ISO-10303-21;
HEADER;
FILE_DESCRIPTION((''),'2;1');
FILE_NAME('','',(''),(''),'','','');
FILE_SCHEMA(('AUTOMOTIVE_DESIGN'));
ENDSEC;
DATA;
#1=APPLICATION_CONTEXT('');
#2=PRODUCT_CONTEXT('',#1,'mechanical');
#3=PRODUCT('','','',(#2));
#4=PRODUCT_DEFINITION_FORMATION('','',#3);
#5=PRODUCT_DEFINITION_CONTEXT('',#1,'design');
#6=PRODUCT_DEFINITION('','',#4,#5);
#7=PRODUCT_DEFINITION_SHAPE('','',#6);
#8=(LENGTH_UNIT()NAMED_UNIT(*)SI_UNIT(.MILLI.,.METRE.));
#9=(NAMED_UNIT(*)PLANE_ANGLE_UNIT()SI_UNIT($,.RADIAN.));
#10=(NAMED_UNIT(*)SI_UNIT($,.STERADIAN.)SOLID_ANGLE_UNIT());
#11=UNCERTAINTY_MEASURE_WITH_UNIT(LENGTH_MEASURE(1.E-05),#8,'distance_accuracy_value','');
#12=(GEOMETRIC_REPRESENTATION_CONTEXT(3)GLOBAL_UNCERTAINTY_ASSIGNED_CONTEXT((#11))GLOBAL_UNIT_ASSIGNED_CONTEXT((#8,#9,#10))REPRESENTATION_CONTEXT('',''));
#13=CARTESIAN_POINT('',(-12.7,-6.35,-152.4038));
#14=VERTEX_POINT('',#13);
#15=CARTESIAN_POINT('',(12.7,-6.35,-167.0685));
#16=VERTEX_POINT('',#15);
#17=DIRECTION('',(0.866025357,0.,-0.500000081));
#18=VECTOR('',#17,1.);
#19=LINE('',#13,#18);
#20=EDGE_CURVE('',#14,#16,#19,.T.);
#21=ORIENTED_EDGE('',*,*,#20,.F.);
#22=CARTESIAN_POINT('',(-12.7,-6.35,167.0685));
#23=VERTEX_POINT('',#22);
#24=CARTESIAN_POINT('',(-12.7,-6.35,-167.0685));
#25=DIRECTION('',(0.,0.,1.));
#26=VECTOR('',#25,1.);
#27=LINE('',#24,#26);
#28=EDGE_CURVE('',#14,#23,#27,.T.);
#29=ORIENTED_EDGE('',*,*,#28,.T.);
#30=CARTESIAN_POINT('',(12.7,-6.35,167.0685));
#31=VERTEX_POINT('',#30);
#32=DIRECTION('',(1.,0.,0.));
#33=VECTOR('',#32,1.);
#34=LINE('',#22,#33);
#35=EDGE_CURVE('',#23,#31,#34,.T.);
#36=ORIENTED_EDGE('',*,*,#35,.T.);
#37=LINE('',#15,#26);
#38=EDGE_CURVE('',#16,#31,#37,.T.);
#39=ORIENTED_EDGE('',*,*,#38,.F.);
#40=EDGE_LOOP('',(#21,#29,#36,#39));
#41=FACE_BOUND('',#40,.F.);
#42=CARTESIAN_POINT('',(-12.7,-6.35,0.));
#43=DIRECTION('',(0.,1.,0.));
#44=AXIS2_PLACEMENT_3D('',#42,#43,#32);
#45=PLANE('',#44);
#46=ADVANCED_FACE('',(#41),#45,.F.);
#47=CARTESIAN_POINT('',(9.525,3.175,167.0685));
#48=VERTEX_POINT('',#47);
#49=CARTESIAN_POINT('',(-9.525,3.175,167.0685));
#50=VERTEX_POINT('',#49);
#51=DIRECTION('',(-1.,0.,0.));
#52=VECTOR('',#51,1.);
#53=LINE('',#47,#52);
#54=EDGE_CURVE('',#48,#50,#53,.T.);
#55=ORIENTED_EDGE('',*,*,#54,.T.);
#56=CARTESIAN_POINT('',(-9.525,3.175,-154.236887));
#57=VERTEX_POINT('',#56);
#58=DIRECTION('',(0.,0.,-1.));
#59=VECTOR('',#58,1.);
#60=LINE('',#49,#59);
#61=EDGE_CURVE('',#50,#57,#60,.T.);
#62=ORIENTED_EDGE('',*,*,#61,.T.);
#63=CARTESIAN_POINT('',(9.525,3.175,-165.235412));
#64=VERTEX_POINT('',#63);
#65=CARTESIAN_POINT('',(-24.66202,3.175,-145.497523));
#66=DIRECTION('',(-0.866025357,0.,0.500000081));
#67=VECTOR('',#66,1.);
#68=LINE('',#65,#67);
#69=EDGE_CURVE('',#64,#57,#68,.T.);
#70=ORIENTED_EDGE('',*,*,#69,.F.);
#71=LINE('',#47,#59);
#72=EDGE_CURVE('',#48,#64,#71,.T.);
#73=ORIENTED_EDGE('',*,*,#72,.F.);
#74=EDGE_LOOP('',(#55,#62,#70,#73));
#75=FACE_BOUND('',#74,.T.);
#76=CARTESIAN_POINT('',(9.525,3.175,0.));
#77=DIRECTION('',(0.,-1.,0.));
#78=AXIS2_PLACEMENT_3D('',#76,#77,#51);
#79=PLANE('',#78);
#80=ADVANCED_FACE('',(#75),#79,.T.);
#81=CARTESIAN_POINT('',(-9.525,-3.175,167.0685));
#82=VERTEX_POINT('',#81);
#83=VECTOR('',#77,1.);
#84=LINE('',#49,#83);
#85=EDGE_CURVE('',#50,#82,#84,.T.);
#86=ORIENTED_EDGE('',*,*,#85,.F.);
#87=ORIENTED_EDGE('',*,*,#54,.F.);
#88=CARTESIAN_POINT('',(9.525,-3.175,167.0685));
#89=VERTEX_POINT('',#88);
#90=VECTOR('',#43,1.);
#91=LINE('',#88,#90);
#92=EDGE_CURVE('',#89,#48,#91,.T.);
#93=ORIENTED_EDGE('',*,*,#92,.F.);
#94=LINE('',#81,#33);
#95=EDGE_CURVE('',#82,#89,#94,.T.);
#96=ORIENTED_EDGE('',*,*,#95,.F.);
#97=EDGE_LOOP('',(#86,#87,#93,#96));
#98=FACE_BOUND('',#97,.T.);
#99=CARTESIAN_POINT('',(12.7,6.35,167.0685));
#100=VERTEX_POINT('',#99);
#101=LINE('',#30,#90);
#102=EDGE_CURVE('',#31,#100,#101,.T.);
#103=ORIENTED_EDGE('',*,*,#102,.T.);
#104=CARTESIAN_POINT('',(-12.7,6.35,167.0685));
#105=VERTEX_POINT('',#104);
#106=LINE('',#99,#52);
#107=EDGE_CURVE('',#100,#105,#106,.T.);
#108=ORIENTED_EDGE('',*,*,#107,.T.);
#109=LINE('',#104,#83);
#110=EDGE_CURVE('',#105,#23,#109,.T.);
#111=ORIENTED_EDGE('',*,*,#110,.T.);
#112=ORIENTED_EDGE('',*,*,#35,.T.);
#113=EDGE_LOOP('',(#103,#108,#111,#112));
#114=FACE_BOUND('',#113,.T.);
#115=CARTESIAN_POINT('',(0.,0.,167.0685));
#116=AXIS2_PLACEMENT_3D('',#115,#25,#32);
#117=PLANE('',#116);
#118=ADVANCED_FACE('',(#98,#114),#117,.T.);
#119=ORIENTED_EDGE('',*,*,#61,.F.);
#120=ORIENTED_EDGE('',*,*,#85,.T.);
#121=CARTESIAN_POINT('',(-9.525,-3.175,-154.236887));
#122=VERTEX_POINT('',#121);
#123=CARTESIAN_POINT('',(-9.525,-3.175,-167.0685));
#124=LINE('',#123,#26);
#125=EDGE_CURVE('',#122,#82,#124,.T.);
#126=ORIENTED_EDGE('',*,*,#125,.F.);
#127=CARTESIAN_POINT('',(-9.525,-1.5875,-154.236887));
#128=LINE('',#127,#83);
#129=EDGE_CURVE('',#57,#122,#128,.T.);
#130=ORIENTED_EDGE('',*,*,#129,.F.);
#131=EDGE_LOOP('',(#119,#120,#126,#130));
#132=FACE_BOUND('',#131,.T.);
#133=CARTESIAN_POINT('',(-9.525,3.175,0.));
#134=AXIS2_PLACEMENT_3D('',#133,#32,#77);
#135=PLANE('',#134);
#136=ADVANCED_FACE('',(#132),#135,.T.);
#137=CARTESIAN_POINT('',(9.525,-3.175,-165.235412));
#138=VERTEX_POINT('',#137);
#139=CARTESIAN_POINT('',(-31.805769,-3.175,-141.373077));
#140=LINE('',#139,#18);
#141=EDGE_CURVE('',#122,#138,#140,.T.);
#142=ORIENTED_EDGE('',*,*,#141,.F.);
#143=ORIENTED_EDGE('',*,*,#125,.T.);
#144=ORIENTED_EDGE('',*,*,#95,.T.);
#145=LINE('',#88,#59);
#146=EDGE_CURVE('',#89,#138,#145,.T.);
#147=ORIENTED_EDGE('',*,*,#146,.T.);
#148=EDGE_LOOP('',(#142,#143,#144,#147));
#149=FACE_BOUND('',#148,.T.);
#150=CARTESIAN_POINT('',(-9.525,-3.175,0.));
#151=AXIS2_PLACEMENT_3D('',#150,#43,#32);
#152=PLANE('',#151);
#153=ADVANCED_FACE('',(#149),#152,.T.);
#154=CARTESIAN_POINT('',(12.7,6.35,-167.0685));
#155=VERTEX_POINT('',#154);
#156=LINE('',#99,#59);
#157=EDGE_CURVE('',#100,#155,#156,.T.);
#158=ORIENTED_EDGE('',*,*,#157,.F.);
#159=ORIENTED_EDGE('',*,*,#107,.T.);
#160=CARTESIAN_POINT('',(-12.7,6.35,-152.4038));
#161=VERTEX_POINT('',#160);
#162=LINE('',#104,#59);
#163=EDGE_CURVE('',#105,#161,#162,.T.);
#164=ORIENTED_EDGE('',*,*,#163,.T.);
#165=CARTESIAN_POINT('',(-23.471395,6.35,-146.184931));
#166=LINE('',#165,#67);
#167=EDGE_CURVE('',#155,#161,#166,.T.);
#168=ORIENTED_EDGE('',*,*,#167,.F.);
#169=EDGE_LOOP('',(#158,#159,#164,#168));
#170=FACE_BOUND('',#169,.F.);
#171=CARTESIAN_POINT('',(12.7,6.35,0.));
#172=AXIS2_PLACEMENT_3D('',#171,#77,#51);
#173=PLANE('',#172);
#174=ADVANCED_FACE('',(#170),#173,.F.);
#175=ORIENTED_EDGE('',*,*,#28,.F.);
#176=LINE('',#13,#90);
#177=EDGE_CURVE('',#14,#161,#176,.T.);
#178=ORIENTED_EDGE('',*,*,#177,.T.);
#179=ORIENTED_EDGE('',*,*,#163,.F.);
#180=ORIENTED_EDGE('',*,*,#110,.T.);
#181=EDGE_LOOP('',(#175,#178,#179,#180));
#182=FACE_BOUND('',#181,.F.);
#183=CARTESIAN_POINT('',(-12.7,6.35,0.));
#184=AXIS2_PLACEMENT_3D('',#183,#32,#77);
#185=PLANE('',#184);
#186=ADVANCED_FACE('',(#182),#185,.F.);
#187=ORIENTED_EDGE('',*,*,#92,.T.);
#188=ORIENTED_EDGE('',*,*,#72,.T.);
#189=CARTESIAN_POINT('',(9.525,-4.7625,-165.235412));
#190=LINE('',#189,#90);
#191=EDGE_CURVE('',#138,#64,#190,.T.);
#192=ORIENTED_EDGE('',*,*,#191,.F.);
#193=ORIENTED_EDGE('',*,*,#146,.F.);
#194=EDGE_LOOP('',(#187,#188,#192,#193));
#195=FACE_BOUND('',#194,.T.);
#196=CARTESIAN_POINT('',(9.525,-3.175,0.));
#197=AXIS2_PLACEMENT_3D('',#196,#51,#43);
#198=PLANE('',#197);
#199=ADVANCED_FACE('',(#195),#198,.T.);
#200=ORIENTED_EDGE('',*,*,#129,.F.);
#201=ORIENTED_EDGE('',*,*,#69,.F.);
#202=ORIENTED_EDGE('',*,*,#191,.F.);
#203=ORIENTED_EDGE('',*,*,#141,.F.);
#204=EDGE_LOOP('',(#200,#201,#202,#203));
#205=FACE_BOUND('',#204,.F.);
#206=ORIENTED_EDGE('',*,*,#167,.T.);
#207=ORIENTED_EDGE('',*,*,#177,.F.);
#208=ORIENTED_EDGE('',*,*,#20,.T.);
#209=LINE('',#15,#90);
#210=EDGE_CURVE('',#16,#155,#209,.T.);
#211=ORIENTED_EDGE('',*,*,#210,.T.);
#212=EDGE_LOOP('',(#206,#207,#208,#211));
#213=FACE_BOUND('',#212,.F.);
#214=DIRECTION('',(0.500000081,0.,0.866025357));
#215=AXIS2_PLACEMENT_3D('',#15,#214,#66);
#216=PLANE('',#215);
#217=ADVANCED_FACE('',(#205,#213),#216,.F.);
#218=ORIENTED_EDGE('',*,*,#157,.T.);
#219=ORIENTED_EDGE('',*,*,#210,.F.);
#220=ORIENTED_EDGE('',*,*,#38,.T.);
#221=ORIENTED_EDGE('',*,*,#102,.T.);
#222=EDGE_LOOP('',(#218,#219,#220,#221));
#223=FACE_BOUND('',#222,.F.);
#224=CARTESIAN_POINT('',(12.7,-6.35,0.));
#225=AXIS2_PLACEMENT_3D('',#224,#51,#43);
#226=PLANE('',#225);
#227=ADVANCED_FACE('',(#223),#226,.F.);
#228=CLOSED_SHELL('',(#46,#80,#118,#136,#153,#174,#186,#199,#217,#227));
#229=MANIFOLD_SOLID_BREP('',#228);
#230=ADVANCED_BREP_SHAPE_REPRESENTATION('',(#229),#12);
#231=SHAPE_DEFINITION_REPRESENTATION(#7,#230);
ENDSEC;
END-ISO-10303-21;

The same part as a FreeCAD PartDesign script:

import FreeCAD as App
import Part
import Sketcher
Q = App.Units.Quantity

doc = App.newDocument("Part")
body = doc.addObject("PartDesign::Body", "Body")

# Sketch on XY plane
sketch1 = body.newObject("Sketcher::SketchObject", "Sketch")
sketch1.AttachmentSupport = (doc.getObject("XY_Plane"), [""])
sketch1.MapMode = "FlatFace"
sketch1.addGeometry([
    Part.LineSegment(App.Vector(-13, 6, 0), App.Vector(-13, -6, 0)),  # 0
    Part.LineSegment(App.Vector(-13, -6, 0), App.Vector(13, -6, 0)),  # 1
    Part.LineSegment(App.Vector(13, -6, 0), App.Vector(13, 6, 0)),  # 2
    Part.LineSegment(App.Vector(13, 6, 0), App.Vector(-13, 6, 0)),  # 3
    Part.LineSegment(App.Vector(10, -3, 0), App.Vector(-10, -3, 0)),  # 4
    Part.LineSegment(App.Vector(-10, -3, 0), App.Vector(-10, 3, 0)),  # 5
    Part.LineSegment(App.Vector(-10, 3, 0), App.Vector(10, 3, 0)),  # 6
    Part.LineSegment(App.Vector(10, 3, 0), App.Vector(10, -3, 0)),  # 7
], False)
sketch1.addConstraint([
    Sketcher.Constraint("Coincident", 0, 2, 1, 1),
    Sketcher.Constraint("Coincident", 1, 2, 2, 1),
    Sketcher.Constraint("Coincident", 2, 2, 3, 1),
    Sketcher.Constraint("Coincident", 3, 2, 0, 1),
    Sketcher.Constraint("Coincident", 4, 2, 5, 1),
    Sketcher.Constraint("Coincident", 5, 2, 6, 1),
    Sketcher.Constraint("Coincident", 6, 2, 7, 1),
    Sketcher.Constraint("Coincident", 7, 2, 4, 1),
    Sketcher.Constraint("Vertical", 0),
    Sketcher.Constraint("Horizontal", 1),
    Sketcher.Constraint("Vertical", 2),
    Sketcher.Constraint("Horizontal", 3),
    Sketcher.Constraint("Horizontal", 4),
    Sketcher.Constraint("Vertical", 5),
    Sketcher.Constraint("Horizontal", 6),
    Sketcher.Constraint("Vertical", 7),
    Sketcher.Constraint("Symmetric", 0, 2, 2, 2, -1, 1),
    Sketcher.Constraint("Symmetric", 4, 2, 6, 2, -1, 1),
    Sketcher.Constraint("DistanceX", 1, 1, 1, 2, Q("1 in")),
    Sketcher.Constraint("DistanceY", 0, 2, 0, 1, Q("0.5 in")),
    Sketcher.Constraint("DistanceY", 4, 2, -1, 1, Q("0.125 in")),
    Sketcher.Constraint("DistanceX", 0, 2, 4, 2, Q("0.125 in")),
])
pad1 = body.newObject("PartDesign::Pad", "Pad")
pad1.Profile = sketch1
pad1.Length = Q("13.155 in")
pad1.Midplane = True

# Sketch on XZ plane
sketch2 = body.newObject("Sketcher::SketchObject", "Sketch001")
sketch2.AttachmentSupport = (doc.getObject("XZ_Plane"), [""])
sketch2.MapMode = "FlatFace"
sketch2.AttachmentOffset = App.Placement(App.Vector(0, 0, 0.25 * 25.4), App.Rotation())
sketch2.addGeometry([
    Part.LineSegment(App.Vector(13, -167, 0), App.Vector(-13, -152, 0)),
    Part.LineSegment(App.Vector(-13, -152, 0), App.Vector(-13, -167, 0)),
    Part.LineSegment(App.Vector(-13, -167, 0), App.Vector(13, -167, 0)),
], False)
sketch2.addConstraint([
    Sketcher.Constraint("Coincident", 0, 2, 1, 1),
    Sketcher.Constraint("Coincident", 1, 2, 2, 1),
    Sketcher.Constraint("Coincident", 2, 2, 0, 1),
    Sketcher.Constraint("Vertical", 1),
    Sketcher.Constraint("Horizontal", 2),
    Sketcher.Constraint("DistanceX", 2, 1, 2, 2, Q("1 in")),
    Sketcher.Constraint("Angle", 0, Q("150 deg")),
    Sketcher.Constraint("DistanceX", 0, 2, -1, 1, Q("0.5 in")),
    Sketcher.Constraint("DistanceY", 1, 2, -1, 1, Q("6.5775 in")),
])
pocket1 = body.newObject("PartDesign::Pocket", "Pocket")
pocket1.Profile = sketch2
pocket1.Type = "ThroughAll"

doc.recompute()
